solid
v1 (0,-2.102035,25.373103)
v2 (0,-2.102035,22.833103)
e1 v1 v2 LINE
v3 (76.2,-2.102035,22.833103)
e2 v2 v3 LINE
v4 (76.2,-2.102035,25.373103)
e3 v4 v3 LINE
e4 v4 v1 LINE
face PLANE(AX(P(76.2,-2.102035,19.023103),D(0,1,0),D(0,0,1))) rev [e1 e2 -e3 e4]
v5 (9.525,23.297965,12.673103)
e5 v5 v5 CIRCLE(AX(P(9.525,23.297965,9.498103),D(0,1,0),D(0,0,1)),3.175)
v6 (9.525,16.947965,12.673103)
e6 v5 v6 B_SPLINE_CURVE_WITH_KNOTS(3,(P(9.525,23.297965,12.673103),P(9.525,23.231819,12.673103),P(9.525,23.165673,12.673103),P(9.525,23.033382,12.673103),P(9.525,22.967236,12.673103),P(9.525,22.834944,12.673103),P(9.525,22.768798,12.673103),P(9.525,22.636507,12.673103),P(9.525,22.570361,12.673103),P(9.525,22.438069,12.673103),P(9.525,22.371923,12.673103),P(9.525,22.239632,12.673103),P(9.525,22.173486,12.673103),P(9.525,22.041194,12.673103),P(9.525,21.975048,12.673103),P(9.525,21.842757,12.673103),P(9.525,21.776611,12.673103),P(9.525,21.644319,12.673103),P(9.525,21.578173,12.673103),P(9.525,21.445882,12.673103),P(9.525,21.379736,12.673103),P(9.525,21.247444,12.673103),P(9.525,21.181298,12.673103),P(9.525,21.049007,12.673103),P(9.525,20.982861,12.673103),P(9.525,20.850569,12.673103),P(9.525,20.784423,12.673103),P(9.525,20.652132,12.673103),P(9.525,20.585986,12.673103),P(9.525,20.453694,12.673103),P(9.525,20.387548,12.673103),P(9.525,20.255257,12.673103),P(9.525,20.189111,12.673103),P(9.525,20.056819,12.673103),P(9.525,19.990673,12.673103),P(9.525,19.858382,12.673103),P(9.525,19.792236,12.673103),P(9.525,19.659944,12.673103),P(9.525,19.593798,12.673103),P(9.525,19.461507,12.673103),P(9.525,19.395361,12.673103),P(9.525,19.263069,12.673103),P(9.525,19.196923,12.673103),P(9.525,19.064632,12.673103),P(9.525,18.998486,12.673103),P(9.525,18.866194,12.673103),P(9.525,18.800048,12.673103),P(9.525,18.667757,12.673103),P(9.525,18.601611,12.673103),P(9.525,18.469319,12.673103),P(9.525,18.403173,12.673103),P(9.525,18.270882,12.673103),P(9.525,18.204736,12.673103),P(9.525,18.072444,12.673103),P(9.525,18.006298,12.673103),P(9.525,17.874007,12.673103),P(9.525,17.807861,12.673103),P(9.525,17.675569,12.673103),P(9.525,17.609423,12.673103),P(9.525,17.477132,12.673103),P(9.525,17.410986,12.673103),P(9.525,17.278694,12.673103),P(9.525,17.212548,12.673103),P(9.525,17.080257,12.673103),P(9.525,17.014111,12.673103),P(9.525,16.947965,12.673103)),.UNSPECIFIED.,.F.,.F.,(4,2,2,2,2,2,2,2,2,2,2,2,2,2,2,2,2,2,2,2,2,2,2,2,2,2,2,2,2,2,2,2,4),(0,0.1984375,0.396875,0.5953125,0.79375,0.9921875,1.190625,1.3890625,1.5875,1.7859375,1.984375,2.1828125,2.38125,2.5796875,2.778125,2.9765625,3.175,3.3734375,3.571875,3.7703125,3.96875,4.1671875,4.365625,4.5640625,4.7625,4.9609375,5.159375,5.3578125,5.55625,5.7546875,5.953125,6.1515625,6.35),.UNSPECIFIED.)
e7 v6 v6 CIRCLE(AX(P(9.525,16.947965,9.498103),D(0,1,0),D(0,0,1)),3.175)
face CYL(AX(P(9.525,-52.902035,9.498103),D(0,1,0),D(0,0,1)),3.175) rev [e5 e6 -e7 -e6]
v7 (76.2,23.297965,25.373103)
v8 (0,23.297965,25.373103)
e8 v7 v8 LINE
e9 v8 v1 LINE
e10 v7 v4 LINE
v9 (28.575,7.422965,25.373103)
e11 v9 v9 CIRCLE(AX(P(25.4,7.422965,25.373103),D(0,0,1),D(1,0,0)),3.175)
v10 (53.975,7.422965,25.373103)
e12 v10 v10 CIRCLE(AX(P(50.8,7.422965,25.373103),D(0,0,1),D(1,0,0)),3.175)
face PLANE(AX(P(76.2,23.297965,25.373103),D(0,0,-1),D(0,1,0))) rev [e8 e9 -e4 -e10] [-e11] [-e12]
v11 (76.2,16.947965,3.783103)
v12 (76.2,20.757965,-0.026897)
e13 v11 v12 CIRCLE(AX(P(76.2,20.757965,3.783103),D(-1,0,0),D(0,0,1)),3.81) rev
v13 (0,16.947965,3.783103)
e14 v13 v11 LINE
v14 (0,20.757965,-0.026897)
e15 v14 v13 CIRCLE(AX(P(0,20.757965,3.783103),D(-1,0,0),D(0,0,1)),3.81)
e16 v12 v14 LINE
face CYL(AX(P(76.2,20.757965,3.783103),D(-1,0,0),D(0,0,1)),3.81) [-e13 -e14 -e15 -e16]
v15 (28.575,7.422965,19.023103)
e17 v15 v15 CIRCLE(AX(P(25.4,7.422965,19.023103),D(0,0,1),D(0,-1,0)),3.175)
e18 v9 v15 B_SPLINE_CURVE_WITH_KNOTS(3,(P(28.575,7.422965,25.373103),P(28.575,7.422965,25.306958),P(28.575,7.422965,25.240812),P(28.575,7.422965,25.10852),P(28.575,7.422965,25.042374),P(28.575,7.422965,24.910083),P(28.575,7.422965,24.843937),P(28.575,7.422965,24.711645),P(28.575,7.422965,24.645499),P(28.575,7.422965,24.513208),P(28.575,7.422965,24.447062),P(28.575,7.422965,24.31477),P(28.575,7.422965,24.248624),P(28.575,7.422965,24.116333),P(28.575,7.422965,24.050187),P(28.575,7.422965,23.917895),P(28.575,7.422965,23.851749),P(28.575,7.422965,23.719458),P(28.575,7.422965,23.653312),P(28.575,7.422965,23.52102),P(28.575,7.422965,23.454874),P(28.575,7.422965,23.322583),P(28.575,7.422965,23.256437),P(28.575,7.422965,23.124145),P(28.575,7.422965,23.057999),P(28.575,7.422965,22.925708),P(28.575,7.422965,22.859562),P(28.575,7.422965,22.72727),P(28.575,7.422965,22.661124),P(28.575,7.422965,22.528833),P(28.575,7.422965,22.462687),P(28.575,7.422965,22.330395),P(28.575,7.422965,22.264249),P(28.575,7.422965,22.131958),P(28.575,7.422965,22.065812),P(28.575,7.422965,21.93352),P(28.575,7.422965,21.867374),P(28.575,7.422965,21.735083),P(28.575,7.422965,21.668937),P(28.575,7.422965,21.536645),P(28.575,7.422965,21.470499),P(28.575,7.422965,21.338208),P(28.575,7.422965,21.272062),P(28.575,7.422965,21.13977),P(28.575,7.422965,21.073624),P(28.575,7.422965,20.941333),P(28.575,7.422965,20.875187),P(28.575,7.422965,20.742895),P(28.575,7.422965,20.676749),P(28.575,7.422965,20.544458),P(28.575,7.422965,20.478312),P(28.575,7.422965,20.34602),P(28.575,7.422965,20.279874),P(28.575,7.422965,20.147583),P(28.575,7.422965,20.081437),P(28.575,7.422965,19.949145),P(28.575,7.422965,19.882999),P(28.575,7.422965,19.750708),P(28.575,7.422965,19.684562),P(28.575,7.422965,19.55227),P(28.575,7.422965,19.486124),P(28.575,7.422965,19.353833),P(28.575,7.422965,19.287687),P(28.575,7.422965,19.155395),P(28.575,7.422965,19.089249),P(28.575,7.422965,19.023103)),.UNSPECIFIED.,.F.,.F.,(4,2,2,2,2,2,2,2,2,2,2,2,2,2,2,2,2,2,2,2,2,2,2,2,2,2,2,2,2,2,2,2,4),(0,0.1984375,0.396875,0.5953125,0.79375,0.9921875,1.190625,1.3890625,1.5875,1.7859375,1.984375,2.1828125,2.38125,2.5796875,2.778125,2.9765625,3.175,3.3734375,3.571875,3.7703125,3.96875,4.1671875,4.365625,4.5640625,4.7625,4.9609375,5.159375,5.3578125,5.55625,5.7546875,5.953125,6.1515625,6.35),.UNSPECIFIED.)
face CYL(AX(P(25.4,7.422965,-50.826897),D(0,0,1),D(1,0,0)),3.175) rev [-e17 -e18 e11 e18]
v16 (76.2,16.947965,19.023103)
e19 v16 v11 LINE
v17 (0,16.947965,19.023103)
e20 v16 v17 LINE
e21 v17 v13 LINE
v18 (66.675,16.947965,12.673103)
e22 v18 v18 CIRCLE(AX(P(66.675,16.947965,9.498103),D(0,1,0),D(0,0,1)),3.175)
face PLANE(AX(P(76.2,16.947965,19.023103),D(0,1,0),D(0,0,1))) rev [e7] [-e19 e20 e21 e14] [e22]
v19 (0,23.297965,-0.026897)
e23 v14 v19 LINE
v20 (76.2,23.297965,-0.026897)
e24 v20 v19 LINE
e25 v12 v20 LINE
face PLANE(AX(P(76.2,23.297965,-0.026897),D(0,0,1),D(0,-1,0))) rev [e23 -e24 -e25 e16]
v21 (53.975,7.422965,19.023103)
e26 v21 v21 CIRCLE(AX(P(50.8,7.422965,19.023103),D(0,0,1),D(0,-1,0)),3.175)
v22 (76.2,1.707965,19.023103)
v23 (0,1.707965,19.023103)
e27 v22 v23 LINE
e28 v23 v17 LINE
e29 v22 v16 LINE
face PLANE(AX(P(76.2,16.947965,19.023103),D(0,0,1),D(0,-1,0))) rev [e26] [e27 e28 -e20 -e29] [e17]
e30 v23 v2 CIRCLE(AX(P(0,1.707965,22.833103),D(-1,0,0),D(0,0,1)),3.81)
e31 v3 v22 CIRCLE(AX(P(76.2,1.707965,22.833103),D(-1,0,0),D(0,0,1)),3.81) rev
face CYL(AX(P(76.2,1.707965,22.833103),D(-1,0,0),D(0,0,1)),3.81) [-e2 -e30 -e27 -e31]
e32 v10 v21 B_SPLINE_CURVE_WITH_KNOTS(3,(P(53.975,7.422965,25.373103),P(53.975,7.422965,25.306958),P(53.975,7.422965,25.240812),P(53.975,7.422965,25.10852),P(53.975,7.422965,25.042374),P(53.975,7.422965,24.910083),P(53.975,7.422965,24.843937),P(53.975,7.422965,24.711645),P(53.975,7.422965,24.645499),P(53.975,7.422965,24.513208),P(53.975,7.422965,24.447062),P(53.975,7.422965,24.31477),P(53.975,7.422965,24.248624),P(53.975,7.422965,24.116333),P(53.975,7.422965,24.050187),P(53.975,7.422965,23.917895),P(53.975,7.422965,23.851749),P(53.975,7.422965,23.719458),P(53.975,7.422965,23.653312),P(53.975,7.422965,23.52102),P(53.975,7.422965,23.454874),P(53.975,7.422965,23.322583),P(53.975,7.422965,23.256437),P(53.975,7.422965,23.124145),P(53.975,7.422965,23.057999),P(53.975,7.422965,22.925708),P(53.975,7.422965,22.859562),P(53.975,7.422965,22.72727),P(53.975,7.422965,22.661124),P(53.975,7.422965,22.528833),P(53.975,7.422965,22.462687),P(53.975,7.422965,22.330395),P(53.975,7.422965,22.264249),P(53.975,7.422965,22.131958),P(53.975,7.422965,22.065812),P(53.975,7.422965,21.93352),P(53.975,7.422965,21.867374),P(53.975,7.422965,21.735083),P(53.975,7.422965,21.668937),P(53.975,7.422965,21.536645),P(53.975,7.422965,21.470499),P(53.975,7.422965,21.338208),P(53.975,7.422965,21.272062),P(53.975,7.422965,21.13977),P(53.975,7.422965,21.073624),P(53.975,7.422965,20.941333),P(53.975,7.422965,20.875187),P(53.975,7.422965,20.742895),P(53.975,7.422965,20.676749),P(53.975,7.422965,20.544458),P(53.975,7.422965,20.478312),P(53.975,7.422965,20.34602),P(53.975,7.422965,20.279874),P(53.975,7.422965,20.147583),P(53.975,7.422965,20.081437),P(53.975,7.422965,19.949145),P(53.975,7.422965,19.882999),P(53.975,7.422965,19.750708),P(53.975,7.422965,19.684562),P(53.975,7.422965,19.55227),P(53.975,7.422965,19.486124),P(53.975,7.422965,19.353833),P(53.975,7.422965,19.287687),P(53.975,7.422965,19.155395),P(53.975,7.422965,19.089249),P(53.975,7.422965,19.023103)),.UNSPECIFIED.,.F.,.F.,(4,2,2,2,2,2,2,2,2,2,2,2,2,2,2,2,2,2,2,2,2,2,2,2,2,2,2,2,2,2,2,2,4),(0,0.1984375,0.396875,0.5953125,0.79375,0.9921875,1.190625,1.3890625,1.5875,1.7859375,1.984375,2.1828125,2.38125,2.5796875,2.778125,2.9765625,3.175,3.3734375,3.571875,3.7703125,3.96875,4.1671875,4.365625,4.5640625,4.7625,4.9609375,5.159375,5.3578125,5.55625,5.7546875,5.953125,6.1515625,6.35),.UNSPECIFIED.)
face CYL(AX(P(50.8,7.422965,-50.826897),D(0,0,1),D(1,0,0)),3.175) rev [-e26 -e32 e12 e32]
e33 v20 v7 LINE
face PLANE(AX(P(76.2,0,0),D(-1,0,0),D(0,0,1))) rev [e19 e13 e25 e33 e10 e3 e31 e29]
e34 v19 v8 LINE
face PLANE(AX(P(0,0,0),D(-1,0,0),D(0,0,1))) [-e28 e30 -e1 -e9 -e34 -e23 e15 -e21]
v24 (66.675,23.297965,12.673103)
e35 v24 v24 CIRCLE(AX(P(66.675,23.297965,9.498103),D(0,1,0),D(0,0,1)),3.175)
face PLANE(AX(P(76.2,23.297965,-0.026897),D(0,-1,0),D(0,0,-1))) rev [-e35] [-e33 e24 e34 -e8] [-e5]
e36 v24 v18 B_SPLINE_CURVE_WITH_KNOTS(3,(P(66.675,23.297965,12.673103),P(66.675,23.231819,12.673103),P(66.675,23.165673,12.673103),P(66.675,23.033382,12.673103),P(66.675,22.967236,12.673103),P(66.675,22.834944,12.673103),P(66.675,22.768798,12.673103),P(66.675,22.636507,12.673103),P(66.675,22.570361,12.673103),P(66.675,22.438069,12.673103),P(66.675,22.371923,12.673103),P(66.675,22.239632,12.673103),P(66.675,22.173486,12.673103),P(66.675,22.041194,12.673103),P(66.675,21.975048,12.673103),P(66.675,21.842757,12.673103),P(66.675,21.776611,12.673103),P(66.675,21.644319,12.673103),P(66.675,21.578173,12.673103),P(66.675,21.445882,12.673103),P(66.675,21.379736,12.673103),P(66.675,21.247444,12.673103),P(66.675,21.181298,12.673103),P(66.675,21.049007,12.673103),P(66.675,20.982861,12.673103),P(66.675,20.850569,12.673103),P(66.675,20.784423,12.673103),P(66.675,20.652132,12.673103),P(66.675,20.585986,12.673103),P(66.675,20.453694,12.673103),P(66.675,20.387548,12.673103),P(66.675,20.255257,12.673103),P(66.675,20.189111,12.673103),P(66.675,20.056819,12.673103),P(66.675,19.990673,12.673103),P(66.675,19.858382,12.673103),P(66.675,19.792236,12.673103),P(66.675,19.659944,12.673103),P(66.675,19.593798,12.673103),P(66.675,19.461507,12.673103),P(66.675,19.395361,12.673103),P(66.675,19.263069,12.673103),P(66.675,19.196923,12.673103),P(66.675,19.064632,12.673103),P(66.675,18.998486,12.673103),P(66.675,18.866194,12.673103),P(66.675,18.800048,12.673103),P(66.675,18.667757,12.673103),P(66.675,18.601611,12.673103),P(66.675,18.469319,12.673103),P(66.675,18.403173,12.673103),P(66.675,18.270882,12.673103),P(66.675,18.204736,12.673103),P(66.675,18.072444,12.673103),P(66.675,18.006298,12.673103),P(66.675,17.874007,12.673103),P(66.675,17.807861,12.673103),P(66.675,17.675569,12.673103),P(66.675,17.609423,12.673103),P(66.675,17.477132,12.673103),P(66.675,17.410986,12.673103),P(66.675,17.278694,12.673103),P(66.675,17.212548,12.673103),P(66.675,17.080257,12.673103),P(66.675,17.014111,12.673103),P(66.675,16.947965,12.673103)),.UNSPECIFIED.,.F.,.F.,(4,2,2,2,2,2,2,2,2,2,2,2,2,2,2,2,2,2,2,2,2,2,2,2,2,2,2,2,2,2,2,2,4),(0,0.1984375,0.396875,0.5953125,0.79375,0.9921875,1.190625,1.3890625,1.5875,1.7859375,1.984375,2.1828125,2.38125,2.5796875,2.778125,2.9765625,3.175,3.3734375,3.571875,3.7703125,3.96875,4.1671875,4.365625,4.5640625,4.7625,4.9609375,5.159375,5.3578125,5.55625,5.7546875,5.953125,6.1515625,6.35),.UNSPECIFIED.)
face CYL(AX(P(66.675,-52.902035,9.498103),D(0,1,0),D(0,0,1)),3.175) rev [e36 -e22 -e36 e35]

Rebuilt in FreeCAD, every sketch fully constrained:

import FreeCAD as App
import Part
import Sketcher
from FreeCAD import Vector
Q = App.Units.Quantity


def edges_at(feature, points):
    """Names of the edges that pass closest to the given points."""
    edges = feature.Shape.Edges
    near = lambda p: min(range(len(edges)), key=lambda i: edges[i].distToShape(Part.Vertex(*p))[0])
    return sorted({f"Edge{near(p) + 1}" for p in points})

doc = App.newDocument("Part")
body = doc.addObject("PartDesign::Body", "Body")

# Sketch on YZ plane
sketch1 = body.newObject("Sketcher::SketchObject", "Sketch")
sketch1.AttachmentSupport = (doc.getObject("YZ_Plane"), [""])
sketch1.MapMode = "FlatFace"
sketch1.addGeometry(Part.LineSegment(Vector(23, 0, 0), Vector(23, 25, 0)), False)
sketch1.addGeometry(Part.LineSegment(Vector(23, 25, 0), Vector(-2, 25, 0)), False)
sketch1.addGeometry(Part.LineSegment(Vector(-2, 25, 0), Vector(-2, 19, 0)), False)
sketch1.addGeometry(Part.LineSegment(Vector(-2, 19, 0), Vector(17, 19, 0)), False)
sketch1.addGeometry(Part.LineSegment(Vector(17, 19, 0), Vector(17, 0, 0)), False)
sketch1.addGeometry(Part.LineSegment(Vector(17, 0, 0), Vector(23, 0, 0)), False)
sketch1.addConstraint(Sketcher.Constraint("Coincident", 0, 2, 1, 1))
sketch1.addConstraint(Sketcher.Constraint("Coincident", 1, 2, 2, 1))
sketch1.addConstraint(Sketcher.Constraint("Coincident", 2, 2, 3, 1))
sketch1.addConstraint(Sketcher.Constraint("Coincident", 3, 2, 4, 1))
sketch1.addConstraint(Sketcher.Constraint("Coincident", 4, 2, 5, 1))
sketch1.addConstraint(Sketcher.Constraint("Coincident", 5, 2, 0, 1))
sketch1.addConstraint(Sketcher.Constraint("Vertical", 0))
sketch1.addConstraint(Sketcher.Constraint("Horizontal", 1))
sketch1.addConstraint(Sketcher.Constraint("Vertical", 2))
sketch1.addConstraint(Sketcher.Constraint("Horizontal", 3))
sketch1.addConstraint(Sketcher.Constraint("Vertical", 4))
sketch1.addConstraint(Sketcher.Constraint("Horizontal", 5))
sketch1.addConstraint(Sketcher.Constraint("Equal", 1, 0))
sketch1.addConstraint(Sketcher.Constraint("Equal", 5, 2))
sketch1.addConstraint(Sketcher.Constraint("DistanceX", 1, 2, 1, 1, Q("1 in")))
sketch1.addConstraint(Sketcher.Constraint("DistanceX", 3, 1, 3, 2, Q("0.75 in")))
sketch1.addConstraint(Sketcher.Constraint("DistanceX", -1, 1, 0, 2, 23.297965))
sketch1.addConstraint(Sketcher.Constraint("DistanceY", -1, 1, 0, 2, 25.373103))
pad1 = body.newObject("PartDesign::Pad", "Pad")
pad1.Profile = sketch1
pad1.Length = Q("3 in")
doc.recompute()

fillet = body.newObject("PartDesign::Fillet", "Fillet")
fillet.Base = (pad1, edges_at(pad1, [(38.1, 16.948, -0.027), (38.1, -2.102, 19.023)]))
fillet.Radius = Q("0.15 in")

# Sketch on XZ plane
sketch2 = body.newObject("Sketcher::SketchObject", "Sketch001")
sketch2.AttachmentSupport = (doc.getObject("XZ_Plane"), [""])
sketch2.MapMode = "FlatFace"
sketch2.AttachmentOffset = App.Placement(Vector(0, 0, -23.297965), App.Rotation())
sketch2.addGeometry(Part.Circle(Vector(9.5, 9.5, 0), Vector(0, 0, 1), 3.2), False)
sketch2.addGeometry(Part.Circle(Vector(66.7, 9.5, 0), Vector(0, 0, 1), 3.2), False)
sketch2.addConstraint(Sketcher.Constraint("Equal", 0, 1))
sketch2.addConstraint(Sketcher.Constraint("Horizontal", 0, 3, 1, 3))
sketch2.addConstraint(Sketcher.Constraint("Diameter", 0, Q("0.25 in")))
sketch2.addConstraint(Sketcher.Constraint("DistanceX", 0, 3, 1, 3, Q("2.25 in")))
sketch2.addConstraint(Sketcher.Constraint("DistanceX", -1, 1, 0, 3, Q("0.375 in")))
sketch2.addConstraint(Sketcher.Constraint("DistanceY", -1, 1, 0, 3, 9.498103))
pocket1 = body.newObject("PartDesign::Pocket", "Pocket")
pocket1.Profile = sketch2
pocket1.Length = Q("3 in")
pocket1.Reversed = True

# Sketch on XY plane
sketch3 = body.newObject("Sketcher::SketchObject", "Sketch002")
sketch3.AttachmentSupport = (doc.getObject("XY_Plane"), [""])
sketch3.MapMode = "FlatFace"
sketch3.AttachmentOffset = App.Placement(Vector(0, 0, 25.373103), App.Rotation())
sketch3.addGeometry(Part.Circle(Vector(25.4, 7.4, 0), Vector(0, 0, 1), 3.2), False)
sketch3.addGeometry(Part.Circle(Vector(50.8, 7.4, 0), Vector(0, 0, 1), 3.2), False)
sketch3.addConstraint(Sketcher.Constraint("Equal", 0, 1))
sketch3.addConstraint(Sketcher.Constraint("Horizontal", 0, 3, 1, 3))
sketch3.addConstraint(Sketcher.Constraint("Diameter", 0, Q("0.25 in")))
sketch3.addConstraint(Sketcher.Constraint("DistanceX", -1, 1, 0, 3, Q("1 in")))
sketch3.addConstraint(Sketcher.Constraint("DistanceX", -1, 1, 1, 3, Q("2 in")))
sketch3.addConstraint(Sketcher.Constraint("DistanceY", -1, 1, 0, 3, 7.422965))
pocket2 = body.newObject("PartDesign::Pocket", "Pocket001")
pocket2.Profile = sketch3
pocket2.Length = Q("3 in")

doc.recompute()
